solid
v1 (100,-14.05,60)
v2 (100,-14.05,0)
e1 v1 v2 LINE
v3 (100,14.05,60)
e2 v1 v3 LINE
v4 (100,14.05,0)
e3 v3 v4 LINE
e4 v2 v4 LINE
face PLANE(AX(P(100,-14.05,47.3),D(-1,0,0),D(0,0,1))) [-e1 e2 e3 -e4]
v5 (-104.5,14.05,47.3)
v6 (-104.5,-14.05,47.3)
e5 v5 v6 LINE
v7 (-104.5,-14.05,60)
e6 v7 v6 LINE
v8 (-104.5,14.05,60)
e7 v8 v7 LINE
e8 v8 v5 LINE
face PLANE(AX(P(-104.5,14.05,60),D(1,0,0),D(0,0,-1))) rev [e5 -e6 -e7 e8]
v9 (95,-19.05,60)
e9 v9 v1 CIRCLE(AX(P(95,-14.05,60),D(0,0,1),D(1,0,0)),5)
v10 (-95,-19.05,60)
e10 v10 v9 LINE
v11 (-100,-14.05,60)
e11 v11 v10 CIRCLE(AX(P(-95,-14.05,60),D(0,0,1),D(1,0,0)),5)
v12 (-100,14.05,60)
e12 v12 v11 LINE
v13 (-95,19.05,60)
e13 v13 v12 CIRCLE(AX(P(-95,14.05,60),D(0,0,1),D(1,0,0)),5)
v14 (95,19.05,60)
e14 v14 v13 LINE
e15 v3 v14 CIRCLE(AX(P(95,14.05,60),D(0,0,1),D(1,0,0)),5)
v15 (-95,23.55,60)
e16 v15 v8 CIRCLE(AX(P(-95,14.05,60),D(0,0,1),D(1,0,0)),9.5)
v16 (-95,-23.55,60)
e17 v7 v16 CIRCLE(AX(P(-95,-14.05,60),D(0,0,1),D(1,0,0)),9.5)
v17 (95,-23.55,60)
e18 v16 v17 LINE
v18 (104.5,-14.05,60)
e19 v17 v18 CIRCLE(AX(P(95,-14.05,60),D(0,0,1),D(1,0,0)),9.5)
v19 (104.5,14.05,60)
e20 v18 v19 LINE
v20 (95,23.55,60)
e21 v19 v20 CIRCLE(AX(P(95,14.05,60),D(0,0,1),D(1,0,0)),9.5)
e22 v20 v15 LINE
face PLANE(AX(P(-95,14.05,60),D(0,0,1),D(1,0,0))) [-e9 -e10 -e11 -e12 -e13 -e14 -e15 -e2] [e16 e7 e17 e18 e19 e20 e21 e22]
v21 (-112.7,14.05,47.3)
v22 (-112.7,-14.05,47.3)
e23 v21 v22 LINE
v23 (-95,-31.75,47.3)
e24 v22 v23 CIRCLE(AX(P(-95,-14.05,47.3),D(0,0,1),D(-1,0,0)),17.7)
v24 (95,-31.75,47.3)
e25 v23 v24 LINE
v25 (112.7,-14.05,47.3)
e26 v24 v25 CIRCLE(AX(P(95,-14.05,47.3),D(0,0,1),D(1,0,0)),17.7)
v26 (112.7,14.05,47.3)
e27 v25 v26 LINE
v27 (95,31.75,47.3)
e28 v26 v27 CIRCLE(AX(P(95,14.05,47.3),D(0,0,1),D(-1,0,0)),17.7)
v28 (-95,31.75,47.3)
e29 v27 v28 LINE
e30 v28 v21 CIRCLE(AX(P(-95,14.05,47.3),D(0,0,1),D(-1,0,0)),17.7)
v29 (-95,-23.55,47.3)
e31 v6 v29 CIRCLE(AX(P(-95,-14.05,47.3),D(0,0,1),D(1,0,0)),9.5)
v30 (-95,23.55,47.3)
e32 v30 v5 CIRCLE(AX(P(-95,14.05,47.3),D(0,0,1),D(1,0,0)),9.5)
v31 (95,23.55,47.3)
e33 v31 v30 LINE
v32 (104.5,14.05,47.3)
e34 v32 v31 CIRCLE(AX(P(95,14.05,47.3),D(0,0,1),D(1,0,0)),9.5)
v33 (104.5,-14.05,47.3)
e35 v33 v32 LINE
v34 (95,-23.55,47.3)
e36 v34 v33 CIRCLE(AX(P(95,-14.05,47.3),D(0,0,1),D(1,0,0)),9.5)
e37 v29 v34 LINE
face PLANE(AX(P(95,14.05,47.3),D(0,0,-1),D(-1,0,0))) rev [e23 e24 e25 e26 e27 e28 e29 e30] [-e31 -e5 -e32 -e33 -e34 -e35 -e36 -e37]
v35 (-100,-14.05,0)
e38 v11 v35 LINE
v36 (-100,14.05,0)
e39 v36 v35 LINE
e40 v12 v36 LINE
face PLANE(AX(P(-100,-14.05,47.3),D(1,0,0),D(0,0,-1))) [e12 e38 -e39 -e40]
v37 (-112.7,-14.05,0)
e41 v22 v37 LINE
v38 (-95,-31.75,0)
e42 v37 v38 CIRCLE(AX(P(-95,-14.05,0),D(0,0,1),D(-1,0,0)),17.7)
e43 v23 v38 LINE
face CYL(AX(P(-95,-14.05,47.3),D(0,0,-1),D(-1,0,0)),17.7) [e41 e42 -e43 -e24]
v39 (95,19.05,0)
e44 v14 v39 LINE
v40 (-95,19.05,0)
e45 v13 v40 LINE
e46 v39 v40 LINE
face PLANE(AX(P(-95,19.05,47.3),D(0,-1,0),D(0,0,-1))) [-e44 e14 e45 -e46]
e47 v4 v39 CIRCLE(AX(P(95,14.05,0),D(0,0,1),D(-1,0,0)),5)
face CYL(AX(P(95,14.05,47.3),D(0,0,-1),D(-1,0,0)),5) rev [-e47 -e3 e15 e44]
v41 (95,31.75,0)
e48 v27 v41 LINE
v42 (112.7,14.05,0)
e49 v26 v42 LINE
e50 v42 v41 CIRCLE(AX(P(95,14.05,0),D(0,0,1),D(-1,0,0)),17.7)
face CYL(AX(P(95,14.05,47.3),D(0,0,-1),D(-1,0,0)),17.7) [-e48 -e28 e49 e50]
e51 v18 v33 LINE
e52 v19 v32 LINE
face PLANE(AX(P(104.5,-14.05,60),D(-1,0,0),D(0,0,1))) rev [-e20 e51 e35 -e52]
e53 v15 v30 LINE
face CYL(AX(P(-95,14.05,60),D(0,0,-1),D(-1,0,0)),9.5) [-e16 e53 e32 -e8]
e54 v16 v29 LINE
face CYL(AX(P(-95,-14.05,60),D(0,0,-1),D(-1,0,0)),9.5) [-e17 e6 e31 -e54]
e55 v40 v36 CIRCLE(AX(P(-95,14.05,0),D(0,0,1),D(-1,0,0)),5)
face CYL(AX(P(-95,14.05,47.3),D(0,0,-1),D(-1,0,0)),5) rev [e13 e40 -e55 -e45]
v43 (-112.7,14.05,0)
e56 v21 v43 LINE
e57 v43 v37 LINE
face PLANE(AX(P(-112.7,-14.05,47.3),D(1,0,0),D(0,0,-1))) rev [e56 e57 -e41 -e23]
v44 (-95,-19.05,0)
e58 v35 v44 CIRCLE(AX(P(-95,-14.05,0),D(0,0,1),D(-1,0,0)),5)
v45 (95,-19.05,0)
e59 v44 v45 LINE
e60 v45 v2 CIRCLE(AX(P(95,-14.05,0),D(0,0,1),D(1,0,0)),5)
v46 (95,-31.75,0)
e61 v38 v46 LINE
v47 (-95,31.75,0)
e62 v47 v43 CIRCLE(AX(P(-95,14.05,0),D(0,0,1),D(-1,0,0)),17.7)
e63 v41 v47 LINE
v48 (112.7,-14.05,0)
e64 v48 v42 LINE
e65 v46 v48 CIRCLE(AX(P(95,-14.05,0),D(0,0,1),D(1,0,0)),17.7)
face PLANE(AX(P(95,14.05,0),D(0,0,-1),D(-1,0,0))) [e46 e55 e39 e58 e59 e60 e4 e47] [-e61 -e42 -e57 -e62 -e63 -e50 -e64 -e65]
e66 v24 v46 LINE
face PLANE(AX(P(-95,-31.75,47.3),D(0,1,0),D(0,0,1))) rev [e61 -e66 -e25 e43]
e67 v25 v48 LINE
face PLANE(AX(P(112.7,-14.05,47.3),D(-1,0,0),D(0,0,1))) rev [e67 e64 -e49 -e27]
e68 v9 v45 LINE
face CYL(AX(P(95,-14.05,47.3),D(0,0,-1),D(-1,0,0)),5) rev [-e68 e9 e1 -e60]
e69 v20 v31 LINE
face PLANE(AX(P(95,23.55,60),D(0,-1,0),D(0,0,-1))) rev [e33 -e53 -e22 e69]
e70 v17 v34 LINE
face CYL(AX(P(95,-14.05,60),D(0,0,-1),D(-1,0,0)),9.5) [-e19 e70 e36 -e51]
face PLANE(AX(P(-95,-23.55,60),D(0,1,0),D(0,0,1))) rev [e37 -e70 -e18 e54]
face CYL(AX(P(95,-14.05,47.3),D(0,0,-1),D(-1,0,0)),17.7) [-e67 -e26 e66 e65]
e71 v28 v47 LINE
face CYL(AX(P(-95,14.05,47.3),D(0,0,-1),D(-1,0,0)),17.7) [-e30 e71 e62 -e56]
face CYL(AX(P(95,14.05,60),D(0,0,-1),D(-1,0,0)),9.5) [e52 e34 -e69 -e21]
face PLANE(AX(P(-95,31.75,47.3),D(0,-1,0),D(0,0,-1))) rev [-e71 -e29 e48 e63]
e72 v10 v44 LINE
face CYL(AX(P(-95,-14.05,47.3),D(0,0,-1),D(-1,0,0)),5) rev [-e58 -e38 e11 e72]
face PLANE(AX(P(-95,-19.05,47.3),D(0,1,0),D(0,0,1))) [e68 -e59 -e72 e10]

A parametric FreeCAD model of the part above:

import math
import FreeCAD as App
import Part
import Sketcher
from FreeCAD import Vector

doc = App.newDocument("Part")
body = doc.addObject("PartDesign::Body", "Body")

sketch1 = body.newObject("Sketcher::SketchObject", "Sketch")
sketch1.AttachmentSupport = (doc.getObject("XY_Plane"), [""])
sketch1.MapMode = "FlatFace"
sketch1.addGeometry(Part.LineSegment(Vector(-95, -32, 0), Vector(95, -32, 0)), False)
sketch1.addGeometry(Part.ArcOfCircle(Part.Circle(Vector(95, -14, 0), Vector(0, 0, 1), 18), math.radians(-90), math.radians(0)), False)
sketch1.addGeometry(Part.LineSegment(Vector(113, -14, 0), Vector(113, 14, 0)), False)
sketch1.addGeometry(Part.ArcOfCircle(Part.Circle(Vector(95, 14, 0), Vector(0, 0, 1), 18), math.radians(0), math.radians(90)), False)
sketch1.addGeometry(Part.LineSegment(Vector(95, 32, 0), Vector(-95, 32, 0)), False)
sketch1.addGeometry(Part.ArcOfCircle(Part.Circle(Vector(-95, 14, 0), Vector(0, 0, 1), 18), math.radians(90), math.radians(180)), False)
sketch1.addGeometry(Part.LineSegment(Vector(-113, 14, 0), Vector(-113, -14, 0)), False)
sketch1.addGeometry(Part.ArcOfCircle(Part.Circle(Vector(-95, -14, 0), Vector(0, 0, 1), 18), math.radians(180), math.radians(270)), False)
sketch1.addGeometry(Part.LineSegment(Vector(95, -19, 0), Vector(-95, -19, 0)), False)
sketch1.addGeometry(Part.ArcOfCircle(Part.Circle(Vector(-95, -14, 0), Vector(0, 0, 1), 5), math.radians(180), math.radians(270)), False)
sketch1.addGeometry(Part.LineSegment(Vector(-100, -14, 0), Vector(-100, 14, 0)), False)
sketch1.addGeometry(Part.ArcOfCircle(Part.Circle(Vector(-95, 14, 0), Vector(0, 0, 1), 5), math.radians(90), math.radians(180)), False)
sketch1.addGeometry(Part.LineSegment(Vector(-95, 19, 0), Vector(95, 19, 0)), False)
sketch1.addGeometry(Part.ArcOfCircle(Part.Circle(Vector(95, 14, 0), Vector(0, 0, 1), 5), math.radians(0), math.radians(90)), False)
sketch1.addGeometry(Part.LineSegment(Vector(100, 14, 0), Vector(100, -14, 0)), False)
sketch1.addGeometry(Part.ArcOfCircle(Part.Circle(Vector(95, -14, 0), Vector(0, 0, 1), 5), math.radians(-90), math.radians(0)), False)
sketch1.addConstraint(Sketcher.Constraint("Tangent", 0, 2, 1, 1))
sketch1.addConstraint(Sketcher.Constraint("Tangent", 1, 2, 2, 1))
sketch1.addConstraint(Sketcher.Constraint("Tangent", 2, 2, 3, 1))
sketch1.addConstraint(Sketcher.Constraint("Tangent", 3, 2, 4, 1))
sketch1.addConstraint(Sketcher.Constraint("Tangent", 4, 2, 5, 1))
sketch1.addConstraint(Sketcher.Constraint("Tangent", 5, 2, 6, 1))
sketch1.addConstraint(Sketcher.Constraint("Tangent", 6, 2, 7, 1))
sketch1.addConstraint(Sketcher.Constraint("Tangent", 7, 2, 0, 1))
sketch1.addConstraint(Sketcher.Constraint("Tangent", 8, 2, 9, 2))
sketch1.addConstraint(Sketcher.Constraint("Tangent", 9, 1, 10, 1))
sketch1.addConstraint(Sketcher.Constraint("Tangent", 10, 2, 11, 2))
sketch1.addConstraint(Sketcher.Constraint("Tangent", 11, 1, 12, 1))
sketch1.addConstraint(Sketcher.Constraint("Tangent", 12, 2, 13, 2))
sketch1.addConstraint(Sketcher.Constraint("Tangent", 13, 1, 14, 1))
sketch1.addConstraint(Sketcher.Constraint("Tangent", 14, 2, 15, 2))
sketch1.addConstraint(Sketcher.Constraint("Tangent", 15, 1, 8, 1))
sketch1.addConstraint(Sketcher.Constraint("Horizontal", 0))
sketch1.addConstraint(Sketcher.Constraint("Vertical", 2))
sketch1.addConstraint(Sketcher.Constraint("Horizontal", 4))
sketch1.addConstraint(Sketcher.Constraint("Vertical", 6))
sketch1.addConstraint(Sketcher.Constraint("Horizontal", 8))
sketch1.addConstraint(Sketcher.Constraint("Vertical", 10))
sketch1.addConstraint(Sketcher.Constraint("Horizontal", 12))
sketch1.addConstraint(Sketcher.Constraint("Vertical", 14))
sketch1.addConstraint(Sketcher.Constraint("Coincident", 9, 3, 7, 3))
sketch1.addConstraint(Sketcher.Constraint("Coincident", 11, 3, 5, 3))
sketch1.addConstraint(Sketcher.Constraint("Coincident", 13, 3, 3, 3))
sketch1.addConstraint(Sketcher.Constraint("Equal", 1, 3))
sketch1.addConstraint(Sketcher.Constraint("Equal", 3, 5))
sketch1.addConstraint(Sketcher.Constraint("Equal", 5, 7))
sketch1.addConstraint(Sketcher.Constraint("Equal", 13, 15))
sketch1.addConstraint(Sketcher.Constraint("Symmetric", 1, 3, 5, 3, -1, 1))
sketch1.addConstraint(Sketcher.Constraint("Radius", 9, 5.0))
sketch1.addConstraint(Sketcher.Constraint("Radius", 1, 17.7))
sketch1.addConstraint(Sketcher.Constraint("DistanceX", 0, 1, 0, 2, 190.0))
sketch1.addConstraint(Sketcher.Constraint("DistanceY", 2, 1, 2, 2, 28.1))
pad1 = body.newObject("PartDesign::Pad", "Pad")
pad1.Profile = sketch1
pad1.Length = 47.3

sketch2 = body.newObject("Sketcher::SketchObject", "Sketch001")
sketch2.AttachmentSupport = (doc.getObject("XY_Plane"), [""])
sketch2.MapMode = "FlatFace"
sketch2.AttachmentOffset = App.Placement(Vector(0, 0, 47.3), App.Rotation())
sketch2.addGeometry(Part.LineSegment(Vector(-104, 14, 0), Vector(-104, -14, 0)), False)
sketch2.addGeometry(Part.ArcOfCircle(Part.Circle(Vector(-95, -14, 0), Vector(0, 0, 1), 10), math.radians(-180), math.radians(-90)), False)
sketch2.addGeometry(Part.LineSegment(Vector(-95, -24, 0), Vector(95, -24, 0)), False)
sketch2.addGeometry(Part.ArcOfCircle(Part.Circle(Vector(95, -14, 0), Vector(0, 0, 1), 10), math.radians(-90), math.radians(0)), False)
sketch2.addGeometry(Part.LineSegment(Vector(104, -14, 0), Vector(104, 14, 0)), False)
sketch2.addGeometry(Part.ArcOfCircle(Part.Circle(Vector(95, 14, 0), Vector(0, 0, 1), 10), math.radians(0), math.radians(90)), False)
sketch2.addGeometry(Part.LineSegment(Vector(95, 24, 0), Vector(-95, 24, 0)), False)
sketch2.addGeometry(Part.ArcOfCircle(Part.Circle(Vector(-95, 14, 0), Vector(0, 0, 1), 10), math.radians(90), math.radians(180)), False)
sketch2.addGeometry(Part.LineSegment(Vector(100, 14, 0), Vector(100, -14, 0)), False)
sketch2.addGeometry(Part.ArcOfCircle(Part.Circle(Vector(95, -14, 0), Vector(0, 0, 1), 5), math.radians(-90), math.radians(0)), False)
sketch2.addGeometry(Part.LineSegment(Vector(95, -19, 0), Vector(-95, -19, 0)), False)
sketch2.addGeometry(Part.ArcOfCircle(Part.Circle(Vector(-95, -14, 0), Vector(0, 0, 1), 5), math.radians(180), math.radians(270)), False)
sketch2.addGeometry(Part.LineSegment(Vector(-100, -14, 0), Vector(-100, 14, 0)), False)
sketch2.addGeometry(Part.ArcOfCircle(Part.Circle(Vector(-95, 14, 0), Vector(0, 0, 1), 5), math.radians(90), math.radians(180)), False)
sketch2.addGeometry(Part.LineSegment(Vector(-95, 19, 0), Vector(95, 19, 0)), False)
sketch2.addGeometry(Part.ArcOfCircle(Part.Circle(Vector(95, 14, 0), Vector(0, 0, 1), 5), math.radians(0), math.radians(90)), False)
sketch2.addConstraint(Sketcher.Constraint("Tangent", 0, 2, 1, 1))
sketch2.addConstraint(Sketcher.Constraint("Tangent", 1, 2, 2, 1))
sketch2.addConstraint(Sketcher.Constraint("Tangent", 2, 2, 3, 1))
sketch2.addConstraint(Sketcher.Constraint("Tangent", 3, 2, 4, 1))
sketch2.addConstraint(Sketcher.Constraint("Tangent", 4, 2, 5, 1))
sketch2.addConstraint(Sketcher.Constraint("Tangent", 5, 2, 6, 1))
sketch2.addConstraint(Sketcher.Constraint("Tangent", 6, 2, 7, 1))
sketch2.addConstraint(Sketcher.Constraint("Tangent", 7, 2, 0, 1))
sketch2.addConstraint(Sketcher.Constraint("Tangent", 8, 2, 9, 2))
sketch2.addConstraint(Sketcher.Constraint("Tangent", 9, 1, 10, 1))
sketch2.addConstraint(Sketcher.Constraint("Tangent", 10, 2, 11, 2))
sketch2.addConstraint(Sketcher.Constraint("Tangent", 11, 1, 12, 1))
sketch2.addConstraint(Sketcher.Constraint("Tangent", 12, 2, 13, 2))
sketch2.addConstraint(Sketcher.Constraint("Tangent", 13, 1, 14, 1))
sketch2.addConstraint(Sketcher.Constraint("Tangent", 14, 2, 15, 2))
sketch2.addConstraint(Sketcher.Constraint("Tangent", 15, 1, 8, 1))
sketch2.addConstraint(Sketcher.Constraint("Vertical", 0))
sketch2.addConstraint(Sketcher.Constraint("Horizontal", 2))
sketch2.addConstraint(Sketcher.Constraint("Vertical", 4))
sketch2.addConstraint(Sketcher.Constraint("Horizontal", 6))
sketch2.addConstraint(Sketcher.Constraint("Vertical", 8))
sketch2.addConstraint(Sketcher.Constraint("Horizontal", 10))
sketch2.addConstraint(Sketcher.Constraint("Vertical", 12))
sketch2.addConstraint(Sketcher.Constraint("Horizontal", 14))
sketch2.addConstraint(Sketcher.Constraint("Coincident", 9, 3, 3, 3))
sketch2.addConstraint(Sketcher.Constraint("Coincident", 11, 3, 1, 3))
sketch2.addConstraint(Sketcher.Constraint("Coincident", 13, 3, 7, 3))
sketch2.addConstraint(Sketcher.Constraint("Equal", 1, 3))
sketch2.addConstraint(Sketcher.Constraint("Equal", 3, 5))
sketch2.addConstraint(Sketcher.Constraint("Equal", 5, 7))
sketch2.addConstraint(Sketcher.Constraint("Equal", 13, 15))
sketch2.addConstraint(Sketcher.Constraint("Symmetric", 1, 3, 5, 3, -1, 1))
sketch2.addConstraint(Sketcher.Constraint("Radius", 9, 5.0))
sketch2.addConstraint(Sketcher.Constraint("Radius", 1, 9.5))
sketch2.addConstraint(Sketcher.Constraint("DistanceX", 2, 1, 2, 2, 190.0))
sketch2.addConstraint(Sketcher.Constraint("DistanceY", 0, 2, 0, 1, 28.1))
pad2 = body.newObject("PartDesign::Pad", "Pad001")
pad2.Profile = sketch2
pad2.Length = 12.7

doc.recompute()
